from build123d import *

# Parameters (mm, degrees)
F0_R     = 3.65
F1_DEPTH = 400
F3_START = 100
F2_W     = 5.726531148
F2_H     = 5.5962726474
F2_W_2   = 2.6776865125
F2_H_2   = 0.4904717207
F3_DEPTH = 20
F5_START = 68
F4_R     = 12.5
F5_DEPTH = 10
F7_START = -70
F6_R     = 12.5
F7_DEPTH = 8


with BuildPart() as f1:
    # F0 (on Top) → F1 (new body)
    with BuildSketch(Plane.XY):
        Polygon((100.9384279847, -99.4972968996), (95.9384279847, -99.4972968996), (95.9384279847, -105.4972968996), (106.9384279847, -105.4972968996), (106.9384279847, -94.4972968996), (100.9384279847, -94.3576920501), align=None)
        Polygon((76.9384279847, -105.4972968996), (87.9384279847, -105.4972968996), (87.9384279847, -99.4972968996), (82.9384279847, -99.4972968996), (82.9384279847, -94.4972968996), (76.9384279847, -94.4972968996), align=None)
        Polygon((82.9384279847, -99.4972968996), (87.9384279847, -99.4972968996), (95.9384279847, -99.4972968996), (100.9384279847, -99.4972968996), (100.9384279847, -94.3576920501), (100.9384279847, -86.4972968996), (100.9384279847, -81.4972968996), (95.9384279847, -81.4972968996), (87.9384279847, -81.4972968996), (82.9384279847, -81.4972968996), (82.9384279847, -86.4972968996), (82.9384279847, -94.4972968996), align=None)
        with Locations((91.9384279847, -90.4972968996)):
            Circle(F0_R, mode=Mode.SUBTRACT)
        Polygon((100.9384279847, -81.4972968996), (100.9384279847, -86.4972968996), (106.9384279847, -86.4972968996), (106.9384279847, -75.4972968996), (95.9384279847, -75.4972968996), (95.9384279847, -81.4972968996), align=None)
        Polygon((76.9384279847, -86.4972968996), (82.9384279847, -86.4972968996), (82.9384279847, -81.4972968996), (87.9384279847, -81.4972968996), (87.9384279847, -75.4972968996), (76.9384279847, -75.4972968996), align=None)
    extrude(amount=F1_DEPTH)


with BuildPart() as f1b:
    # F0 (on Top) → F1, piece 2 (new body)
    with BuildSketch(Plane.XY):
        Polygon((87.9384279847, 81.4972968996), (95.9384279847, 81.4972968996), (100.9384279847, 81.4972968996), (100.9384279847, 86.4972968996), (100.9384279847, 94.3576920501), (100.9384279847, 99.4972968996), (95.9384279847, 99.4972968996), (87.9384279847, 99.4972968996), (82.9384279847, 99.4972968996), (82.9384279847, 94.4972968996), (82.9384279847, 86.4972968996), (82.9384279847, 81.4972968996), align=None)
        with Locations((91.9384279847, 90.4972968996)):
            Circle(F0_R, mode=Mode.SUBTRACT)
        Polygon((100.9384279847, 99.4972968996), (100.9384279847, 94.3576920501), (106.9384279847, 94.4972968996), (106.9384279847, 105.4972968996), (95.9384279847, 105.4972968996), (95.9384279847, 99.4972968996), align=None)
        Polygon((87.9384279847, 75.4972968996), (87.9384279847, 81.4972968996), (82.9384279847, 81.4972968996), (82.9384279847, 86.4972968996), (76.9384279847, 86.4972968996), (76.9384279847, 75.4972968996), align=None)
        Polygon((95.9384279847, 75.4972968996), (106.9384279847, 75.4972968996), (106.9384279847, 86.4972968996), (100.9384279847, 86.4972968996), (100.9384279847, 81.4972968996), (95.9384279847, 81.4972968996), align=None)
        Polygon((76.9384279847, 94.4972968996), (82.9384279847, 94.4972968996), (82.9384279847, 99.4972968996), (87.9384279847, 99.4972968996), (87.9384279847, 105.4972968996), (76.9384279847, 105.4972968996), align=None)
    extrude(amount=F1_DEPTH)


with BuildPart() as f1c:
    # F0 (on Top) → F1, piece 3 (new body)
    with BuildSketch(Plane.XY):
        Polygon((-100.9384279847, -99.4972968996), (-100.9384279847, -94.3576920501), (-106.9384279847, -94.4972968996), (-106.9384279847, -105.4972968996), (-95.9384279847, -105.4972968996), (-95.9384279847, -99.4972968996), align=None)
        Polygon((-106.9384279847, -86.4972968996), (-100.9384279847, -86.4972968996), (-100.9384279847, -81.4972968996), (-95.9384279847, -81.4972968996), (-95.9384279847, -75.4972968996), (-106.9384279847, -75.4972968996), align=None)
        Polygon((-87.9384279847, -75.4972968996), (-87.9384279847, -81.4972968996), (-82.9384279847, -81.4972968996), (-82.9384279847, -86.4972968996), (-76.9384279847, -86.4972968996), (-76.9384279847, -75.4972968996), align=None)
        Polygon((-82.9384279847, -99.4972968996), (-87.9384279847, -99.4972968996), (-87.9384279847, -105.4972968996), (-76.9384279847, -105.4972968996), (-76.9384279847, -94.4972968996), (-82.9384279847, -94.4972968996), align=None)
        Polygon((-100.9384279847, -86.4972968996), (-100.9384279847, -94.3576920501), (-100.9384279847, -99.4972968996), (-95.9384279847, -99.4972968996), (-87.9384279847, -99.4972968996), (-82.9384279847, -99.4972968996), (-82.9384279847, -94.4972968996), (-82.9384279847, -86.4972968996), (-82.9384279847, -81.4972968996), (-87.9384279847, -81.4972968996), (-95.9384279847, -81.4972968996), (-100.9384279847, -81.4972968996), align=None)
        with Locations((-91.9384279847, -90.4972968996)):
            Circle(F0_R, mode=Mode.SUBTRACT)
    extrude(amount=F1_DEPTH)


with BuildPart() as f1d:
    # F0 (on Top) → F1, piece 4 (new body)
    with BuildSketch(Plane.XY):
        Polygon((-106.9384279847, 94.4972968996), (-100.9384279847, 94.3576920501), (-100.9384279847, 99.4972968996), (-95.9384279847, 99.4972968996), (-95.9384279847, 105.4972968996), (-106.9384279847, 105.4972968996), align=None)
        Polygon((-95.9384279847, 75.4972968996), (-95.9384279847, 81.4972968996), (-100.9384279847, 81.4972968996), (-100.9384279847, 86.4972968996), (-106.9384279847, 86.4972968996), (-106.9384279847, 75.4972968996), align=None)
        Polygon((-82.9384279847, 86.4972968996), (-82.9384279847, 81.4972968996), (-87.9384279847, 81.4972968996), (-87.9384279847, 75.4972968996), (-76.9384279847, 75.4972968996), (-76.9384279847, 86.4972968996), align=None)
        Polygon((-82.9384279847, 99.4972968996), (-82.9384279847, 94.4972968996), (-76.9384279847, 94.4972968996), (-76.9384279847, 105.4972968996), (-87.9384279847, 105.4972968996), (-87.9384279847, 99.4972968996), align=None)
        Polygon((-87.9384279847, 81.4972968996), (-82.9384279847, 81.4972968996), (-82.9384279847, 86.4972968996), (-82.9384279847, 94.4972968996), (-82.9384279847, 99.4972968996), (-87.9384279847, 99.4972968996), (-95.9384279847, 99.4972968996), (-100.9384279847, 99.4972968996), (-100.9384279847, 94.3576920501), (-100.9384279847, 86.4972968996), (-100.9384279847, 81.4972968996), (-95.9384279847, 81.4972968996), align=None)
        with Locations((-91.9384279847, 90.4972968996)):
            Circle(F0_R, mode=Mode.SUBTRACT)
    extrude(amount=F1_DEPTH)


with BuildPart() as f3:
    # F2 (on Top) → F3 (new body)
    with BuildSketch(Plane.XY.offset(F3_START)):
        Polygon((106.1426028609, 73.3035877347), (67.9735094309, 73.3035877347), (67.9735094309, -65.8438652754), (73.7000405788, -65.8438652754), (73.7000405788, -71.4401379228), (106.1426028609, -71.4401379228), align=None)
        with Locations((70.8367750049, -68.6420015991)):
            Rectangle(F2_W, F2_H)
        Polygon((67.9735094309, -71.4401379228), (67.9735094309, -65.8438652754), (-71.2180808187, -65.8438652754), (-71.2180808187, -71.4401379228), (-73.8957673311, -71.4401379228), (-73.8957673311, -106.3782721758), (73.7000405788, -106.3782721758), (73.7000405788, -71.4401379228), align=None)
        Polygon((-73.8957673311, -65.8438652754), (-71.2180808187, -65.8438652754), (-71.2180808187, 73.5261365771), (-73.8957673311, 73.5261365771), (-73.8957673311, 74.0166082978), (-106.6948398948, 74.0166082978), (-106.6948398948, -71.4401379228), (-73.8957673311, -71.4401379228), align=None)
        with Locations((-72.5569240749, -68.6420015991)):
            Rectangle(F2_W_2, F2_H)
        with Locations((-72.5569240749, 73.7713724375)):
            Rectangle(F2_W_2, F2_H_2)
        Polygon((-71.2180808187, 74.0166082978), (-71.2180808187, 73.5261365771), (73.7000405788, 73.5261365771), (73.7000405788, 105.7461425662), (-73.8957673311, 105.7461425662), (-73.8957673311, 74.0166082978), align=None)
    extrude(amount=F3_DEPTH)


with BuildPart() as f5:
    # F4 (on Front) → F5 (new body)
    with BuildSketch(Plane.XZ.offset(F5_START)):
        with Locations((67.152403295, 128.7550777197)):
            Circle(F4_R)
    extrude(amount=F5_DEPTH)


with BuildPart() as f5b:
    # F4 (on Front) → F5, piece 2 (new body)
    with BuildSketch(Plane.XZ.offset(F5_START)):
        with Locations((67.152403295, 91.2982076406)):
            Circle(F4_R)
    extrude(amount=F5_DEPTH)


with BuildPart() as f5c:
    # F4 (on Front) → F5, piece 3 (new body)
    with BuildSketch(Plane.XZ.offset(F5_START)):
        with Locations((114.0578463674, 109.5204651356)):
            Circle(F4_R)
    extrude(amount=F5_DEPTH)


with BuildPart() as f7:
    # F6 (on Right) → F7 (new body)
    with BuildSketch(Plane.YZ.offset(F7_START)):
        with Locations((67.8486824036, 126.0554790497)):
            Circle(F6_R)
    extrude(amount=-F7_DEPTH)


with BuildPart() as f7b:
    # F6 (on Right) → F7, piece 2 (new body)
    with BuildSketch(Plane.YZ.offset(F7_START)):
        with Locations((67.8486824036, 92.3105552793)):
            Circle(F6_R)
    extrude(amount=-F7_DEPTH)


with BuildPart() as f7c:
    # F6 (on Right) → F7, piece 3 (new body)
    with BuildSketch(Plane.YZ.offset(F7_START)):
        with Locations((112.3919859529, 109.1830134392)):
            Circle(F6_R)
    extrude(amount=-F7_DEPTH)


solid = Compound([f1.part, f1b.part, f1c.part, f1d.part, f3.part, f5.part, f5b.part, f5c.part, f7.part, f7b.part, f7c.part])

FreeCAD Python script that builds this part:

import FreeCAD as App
import Part
import Sketcher

V = App.Vector
Q = App.Units.Quantity


def add_polygon(sketch, points):
    """Adds a closed chain of lines whose ends are joined by coincident constraints."""
    first, n = sketch.GeometryCount, len(points)
    for a, b in zip(points, points[1:] + points[:1]):
        sketch.addGeometry(Part.LineSegment(App.Vector(*a, 0), App.Vector(*b, 0)), False)
    for i in range(n):
        sketch.addConstraint(Sketcher.Constraint("Coincident", first + i, 2, first + (i + 1) % n, 1))

doc = App.newDocument("Part")
body = doc.addObject("PartDesign::Body", "Body")

sketch1 = doc.addObject("Sketcher::SketchObject", "Sketch")
body.addObject(sketch1)
sketch1.AttachmentSupport = (doc.XY_Plane, [""])
sketch1.MapMode = "FlatFace"
add_polygon(sketch1, [(95.9, -99.5), (95.9, -105.5), (106.9, -105.5), (106.9, -94.5), (100.9, -94.4), (100.9, -86.5), (106.9, -86.5), (106.9, -75.5), (95.9, -75.5), (95.9, -81.5), (87.9, -81.5), (87.9, -75.5), (76.9, -75.5), (76.9, -86.5), (82.9, -86.5), (82.9, -94.5), (76.9, -94.5), (76.9, -105.5), (87.9, -105.5), (87.9, -99.5)])
sketch1.addGeometry(Part.Circle(V(91.9, -90.5, 0), V(0, 0, 1), 3.6), False)
sketch1.addConstraint([
    Sketcher.Constraint("Vertical", 0),
    Sketcher.Constraint("Horizontal", 1),
    Sketcher.Constraint("Vertical", 2),
    Sketcher.Constraint("Vertical", 4),
    Sketcher.Constraint("Horizontal", 5),
    Sketcher.Constraint("Vertical", 6),
    Sketcher.Constraint("Horizontal", 7),
    Sketcher.Constraint("Vertical", 8),
    Sketcher.Constraint("Horizontal", 9),
    Sketcher.Constraint("Vertical", 10),
    Sketcher.Constraint("Horizontal", 11),
    Sketcher.Constraint("Vertical", 12),
    Sketcher.Constraint("Horizontal", 13),
    Sketcher.Constraint("Vertical", 14),
    Sketcher.Constraint("Horizontal", 15),
    Sketcher.Constraint("Vertical", 16),
    Sketcher.Constraint("Horizontal", 17),
    Sketcher.Constraint("Vertical", 18),
    Sketcher.Constraint("Horizontal", 19),
    Sketcher.Constraint("Horizontal", 7, 2, 10, 2),
    Sketcher.Constraint("Horizontal", 5, 2, 12, 2),
    Sketcher.Constraint("Horizontal", 2, 2, 14, 2),
    Sketcher.Constraint("Horizontal", 1, 2, 16, 2),
    Sketcher.Constraint("Vertical", 2, 2, 5, 2),
    Sketcher.Constraint("Vertical", 0, 2, 7, 2),
    Sketcher.Constraint("Vertical", 12, 2, 15, 2),
    Sketcher.Constraint("Vertical", 10, 2, 17, 2),
    Sketcher.Constraint("Equal", 7, 11),
    Sketcher.Constraint("Equal", 5, 13),
    Sketcher.Constraint("Equal", 15, 0),
    Sketcher.Constraint("Equal", 17, 2),
    Sketcher.Constraint("Equal", 2, 6),
    Sketcher.Constraint("Equal", 0, 8),
    Sketcher.Constraint("Equal", 19, 14),
    Sketcher.Constraint("Diameter", 20, Q("7.3 mm")),
    Sketcher.Constraint("DistanceX", 1, 1, 1, 2, Q("11 mm")),
    Sketcher.Constraint("DistanceX", 5, 1, 5, 2, Q("6 mm")),
    Sketcher.Constraint("DistanceX", 9, 2, 9, 1, Q("8 mm")),
    Sketcher.Constraint("DistanceX", 20, 3, 0, 2, Q("4 mm")),
    Sketcher.Constraint("DistanceY", 0, 2, 20, 3, Q("15 mm")),
    Sketcher.Constraint("DistanceY", 4, 1, 4, 2, Q("7.860395 mm")),
    Sketcher.Constraint("DistanceX", -1, 1, 20, 3, Q("91.938428 mm")),
    Sketcher.Constraint("DistanceY", 20, 3, -1, 1, Q("90.497297 mm")),
])
pad1 = doc.addObject("PartDesign::Pad", "Pad")
body.addObject(pad1)
pad1.Profile = sketch1
pad1.Length = 400
body2 = doc.addObject("PartDesign::Body", "Body001")

sketch2 = doc.addObject("Sketcher::SketchObject", "Sketch001")
body2.addObject(sketch2)
sketch2.AttachmentSupport = (doc.getObject("XY_Plane001"), [""])
sketch2.MapMode = "FlatFace"
add_polygon(sketch2, [(100.9, 86.5), (100.9, 94.4), (106.9, 94.5), (106.9, 105.5), (95.9, 105.5), (95.9, 99.5), (87.9, 99.5), (87.9, 105.5), (76.9, 105.5), (76.9, 94.5), (82.9, 94.5), (82.9, 86.5), (76.9, 86.5), (76.9, 75.5), (87.9, 75.5), (87.9, 81.5), (95.9, 81.5), (95.9, 75.5), (106.9, 75.5), (106.9, 86.5)])
sketch2.addGeometry(Part.Circle(V(91.9, 90.5, 0), V(0, 0, 1), 3.6), False)
sketch2.addConstraint([
    Sketcher.Constraint("Vertical", 0),
    Sketcher.Constraint("Vertical", 2),
    Sketcher.Constraint("Horizontal", 3),
    Sketcher.Constraint("Vertical", 4),
    Sketcher.Constraint("Horizontal", 5),
    Sketcher.Constraint("Vertical", 6),
    Sketcher.Constraint("Horizontal", 7),
    Sketcher.Constraint("Vertical", 8),
    Sketcher.Constraint("Horizontal", 9),
    Sketcher.Constraint("Vertical", 10),
    Sketcher.Constraint("Horizontal", 11),
    Sketcher.Constraint("Vertical", 12),
    Sketcher.Constraint("Horizontal", 13),
    Sketcher.Constraint("Vertical", 14),
    Sketcher.Constraint("Horizontal", 15),
    Sketcher.Constraint("Vertical", 16),
    Sketcher.Constraint("Horizontal", 17),
    Sketcher.Constraint("Vertical", 18),
    Sketcher.Constraint("Horizontal", 19),
    Sketcher.Constraint("Horizontal", 3, 2, 6, 2),
    Sketcher.Constraint("Horizontal", 1, 2, 8, 2),
    Sketcher.Constraint("Horizontal", 13, 2, 16, 2),
    Sketcher.Constraint("Horizontal", 11, 2, 18, 2),
    Sketcher.Constraint("Vertical", 8, 2, 11, 2),
    Sketcher.Constraint("Vertical", 6, 2, 13, 2),
    Sketcher.Constraint("Vertical", 4, 2, 15, 2),
    Sketcher.Constraint("Vertical", 2, 2, 17, 2),
    Sketcher.Constraint("Equal", 3, 7),
    Sketcher.Constraint("Equal", 11, 19),
    Sketcher.Constraint("Equal", 17, 2),
    Sketcher.Constraint("Equal", 19, 4),
    Sketcher.Constraint("Equal", 15, 10),
    Sketcher.Constraint("Equal", 8, 12),
    Sketcher.Constraint("Equal", 6, 14),
    Sketcher.Constraint("Diameter", 20, Q("7.3 mm")),
    Sketcher.Constraint("DistanceX", 3, 2, 3, 1, Q("11 mm")),
    Sketcher.Constraint("DistanceX", 5, 2, 5, 1, Q("8 mm")),
    Sketcher.Constraint("DistanceX", 9, 1, 9, 2, Q("6 mm")),
    Sketcher.Constraint("DistanceX", 20, 3, 0, 2, Q("9 mm")),
    Sketcher.Constraint("DistanceY", 20, 3, 1, 2, Q("4 mm")),
    Sketcher.Constraint("DistanceY", 0, 1, 0, 2, Q("7.860395 mm")),
    Sketcher.Constraint("DistanceX", -1, 1, 20, 3, Q("91.938428 mm")),
    Sketcher.Constraint("DistanceY", -1, 1, 20, 3, Q("90.497297 mm")),
])
pad2 = doc.addObject("PartDesign::Pad", "Pad001")
body2.addObject(pad2)
pad2.Profile = sketch2
pad2.Length = 400
body3 = doc.addObject("PartDesign::Body", "Body002")

sketch3 = doc.addObject("Sketcher::SketchObject", "Sketch002")
body3.addObject(sketch3)
sketch3.AttachmentSupport = (doc.getObject("XY_Plane002"), [""])
sketch3.MapMode = "FlatFace"
add_polygon(sketch3, [(-100.9, -94.4), (-106.9, -94.5), (-106.9, -105.5), (-95.9, -105.5), (-95.9, -99.5), (-87.9, -99.5), (-87.9, -105.5), (-76.9, -105.5), (-76.9, -94.5), (-82.9, -94.5), (-82.9, -86.5), (-76.9, -86.5), (-76.9, -75.5), (-87.9, -75.5), (-87.9, -81.5), (-95.9, -81.5), (-95.9, -75.5), (-106.9, -75.5), (-106.9, -86.5), (-100.9, -86.5)])
sketch3.addGeometry(Part.Circle(V(-91.9, -90.5, 0), V(0, 0, 1), 3.6), False)
sketch3.addConstraint([
    Sketcher.Constraint("Vertical", 1),
    Sketcher.Constraint("Horizontal", 2),
    Sketcher.Constraint("Vertical", 3),
    Sketcher.Constraint("Horizontal", 4),
    Sketcher.Constraint("Vertical", 5),
    Sketcher.Constraint("Horizontal", 6),
    Sketcher.Constraint("Vertical", 7),
    Sketcher.Constraint("Horizontal", 8),
    Sketcher.Constraint("Vertical", 9),
    Sketcher.Constraint("Horizontal", 10),
    Sketcher.Constraint("Vertical", 11),
    Sketcher.Constraint("Horizontal", 12),
    Sketcher.Constraint("Vertical", 13),
    Sketcher.Constraint("Horizontal", 14),
    Sketcher.Constraint("Vertical", 15),
    Sketcher.Constraint("Horizontal", 16),
    Sketcher.Constraint("Vertical", 17),
    Sketcher.Constraint("Horizontal", 18),
    Sketcher.Constraint("Vertical", 19),
    Sketcher.Constraint("Horizontal", 2, 2, 5, 2),
    Sketcher.Constraint("Horizontal", 0, 2, 7, 2),
    Sketcher.Constraint("Horizontal", 12, 2, 15, 2),
    Sketcher.Constraint("Horizontal", 10, 2, 17, 2),
    Sketcher.Constraint("Vertical", 7, 2, 10, 2),
    Sketcher.Constraint("Vertical", 5, 2, 12, 2),
    Sketcher.Constraint("Vertical", 3, 2, 14, 2),
    Sketcher.Constraint("Vertical", 1, 2, 16, 2),
    Sketcher.Constraint("Equal", 2, 6),
    Sketcher.Constraint("Equal", 10, 18),
    Sketcher.Constraint("Equal", 16, 1),
    Sketcher.Constraint("Equal", 18, 3),
    Sketcher.Constraint("Equal", 14, 9),
    Sketcher.Constraint("Equal", 7, 11),
    Sketcher.Constraint("Equal", 5, 13),
    Sketcher.Constraint("Diameter", 20, Q("7.3 mm")),
    Sketcher.Constraint("DistanceX", 2, 1, 2, 2, Q("11 mm")),
    Sketcher.Constraint("DistanceX", 4, 1, 4, 2, Q("8 mm")),
    Sketcher.Constraint("DistanceX", 8, 2, 8, 1, Q("6 mm")),
    Sketcher.Constraint("DistanceX", 0, 2, 20, 3, Q("15 mm")),
    Sketcher.Constraint("DistanceY", 0, 2, 20, 3, Q("4 mm")),
    Sketcher.Constraint("DistanceY", 19, 2, 19, 1, Q("7.860395 mm")),
    Sketcher.Constraint("DistanceX", 20, 3, -1, 1, Q("91.938428 mm")),
    Sketcher.Constraint("DistanceY", 20, 3, -1, 1, Q("90.497297 mm")),
])
pad3 = doc.addObject("PartDesign::Pad", "Pad002")
body3.addObject(pad3)
pad3.Profile = sketch3
pad3.Length = 400
body4 = doc.addObject("PartDesign::Body", "Body003")

sketch4 = doc.addObject("Sketcher::SketchObject", "Sketch003")
body4.addObject(sketch4)
sketch4.AttachmentSupport = (doc.getObject("XY_Plane003"), [""])
sketch4.MapMode = "FlatFace"
add_polygon(sketch4, [(-106.9, 94.5), (-100.9, 94.4), (-100.9, 86.5), (-106.9, 86.5), (-106.9, 75.5), (-95.9, 75.5), (-95.9, 81.5), (-87.9, 81.5), (-87.9, 75.5), (-76.9, 75.5), (-76.9, 86.5), (-82.9, 86.5), (-82.9, 94.5), (-76.9, 94.5), (-76.9, 105.5), (-87.9, 105.5), (-87.9, 99.5), (-95.9, 99.5), (-95.9, 105.5), (-106.9, 105.5)])
sketch4.addGeometry(Part.Circle(V(-91.9, 90.5, 0), V(0, 0, 1), 3.6), False)
sketch4.addConstraint([
    Sketcher.Constraint("Vertical", 1),
    Sketcher.Constraint("Horizontal", 2),
    Sketcher.Constraint("Vertical", 3),
    Sketcher.Constraint("Horizontal", 4),
    Sketcher.Constraint("Vertical", 5),
    Sketcher.Constraint("Horizontal", 6),
    Sketcher.Constraint("Vertical", 7),
    Sketcher.Constraint("Horizontal", 8),
    Sketcher.Constraint("Vertical", 9),
    Sketcher.Constraint("Horizontal", 10),
    Sketcher.Constraint("Vertical", 11),
    Sketcher.Constraint("Horizontal", 12),
    Sketcher.Constraint("Vertical", 13),
    Sketcher.Constraint("Horizontal", 14),
    Sketcher.Constraint("Vertical", 15),
    Sketcher.Constraint("Horizontal", 16),
    Sketcher.Constraint("Vertical", 17),
    Sketcher.Constraint("Horizontal", 18),
    Sketcher.Constraint("Vertical", 19),
    Sketcher.Constraint("Horizontal", 4, 2, 7, 2),
    Sketcher.Constraint("Horizontal", 2, 2, 9, 2),
    Sketcher.Constraint("Horizontal", 14, 2, 17, 2),
    Sketcher.Constraint("Horizontal", 12, 2, 19, 2),
    Sketcher.Constraint("Vertical", 9, 2, 12, 2),
    Sketcher.Constraint("Vertical", 7, 2, 14, 2),
    Sketcher.Constraint("Vertical", 5, 2, 16, 2),
    Sketcher.Constraint("Vertical", 3, 2, 18, 2),
    Sketcher.Constraint("Equal", 4, 8),
    Sketcher.Constraint("Equal", 2, 10),
    Sketcher.Constraint("Equal", 18, 3),
    Sketcher.Constraint("Equal", 12, 5),
    Sketcher.Constraint("Equal", 16, 11),
    Sketcher.Constraint("Equal", 9, 13),
    Sketcher.Constraint("Equal", 7, 15),
    Sketcher.Constraint("Diameter", 20, Q("7.3 mm")),
    Sketcher.Constraint("DistanceX", 2, 2, 2, 1, Q("6 mm")),
    Sketcher.Constraint("DistanceX", 4, 1, 4, 2, Q("11 mm")),
    Sketcher.Constraint("DistanceX", 6, 1, 6, 2, Q("8 mm")),
    Sketcher.Constraint("DistanceX", 0, 2, 20, 3, Q("9 mm")),
    Sketcher.Constraint("DistanceY", 1, 2, 20, 3, Q("4 mm")),
    Sketcher.Constraint("DistanceY", 1, 2, 1, 1, Q("7.860395 mm")),
    Sketcher.Constraint("DistanceX", 20, 3, -1, 1, Q("91.938428 mm")),
    Sketcher.Constraint("DistanceY", -1, 1, 20, 3, Q("90.497297 mm")),
])
pad4 = doc.addObject("PartDesign::Pad", "Pad003")
body4.addObject(pad4)
pad4.Profile = sketch4
pad4.Length = 400
body5 = doc.addObject("PartDesign::Body", "Body004")

sketch5 = doc.addObject("Sketcher::SketchObject", "Sketch004")
body5.addObject(sketch5)
sketch5.AttachmentSupport = (doc.getObject("XY_Plane004"), [""])
sketch5.MapMode = "FlatFace"
sketch5.AttachmentOffset = App.Placement(V(0, 0, 100), App.Rotation())
add_polygon(sketch5, [(106, 73), (68, 73), (68, -66), (-71, -66), (-71, 74), (74, 74), (74, 106), (-74, 106), (-74, 74), (-107, 74), (-107, -71), (-74, -71), (-74, -106), (74, -106), (74, -71), (106, -71)])
sketch5.addConstraint([
    Sketcher.Constraint("Horizontal", 0),
    Sketcher.Constraint("Vertical", 1),
    Sketcher.Constraint("Horizontal", 2),
    Sketcher.Constraint("Vertical", 3),
    Sketcher.Constraint("Horizontal", 4),
    Sketcher.Constraint("Vertical", 5),
    Sketcher.Constraint("Horizontal", 6),
    Sketcher.Constraint("Vertical", 7),
    Sketcher.Constraint("Horizontal", 8),
    Sketcher.Constraint("Vertical", 9),
    Sketcher.Constraint("Horizontal", 10),
    Sketcher.Constraint("Vertical", 11),
    Sketcher.Constraint("Horizontal", 12),
    Sketcher.Constraint("Vertical", 13),
    Sketcher.Constraint("Horizontal", 14),
    Sketcher.Constraint("Vertical", 15),
    Sketcher.Constraint("Horizontal", 10, 2, 13, 2),
    Sketcher.Constraint("Vertical", 7, 2, 10, 2),
    Sketcher.Constraint("Vertical", 5, 2, 12, 2),
    Sketcher.Constraint("DistanceY", 3, 1, 3, 2, Q("139.370002 mm")),
    Sketcher.Constraint("DistanceX", 2, 2, 2, 1, Q("139.19159 mm")),
    Sketcher.Constraint("DistanceX", 4, 1, 4, 2, Q("144.918121 mm")),
    Sketcher.Constraint("DistanceX", 0, 2, 0, 1, Q("38.169093 mm")),
    Sketcher.Constraint("DistanceX", 6, 2, 6, 1, Q("147.595808 mm")),
    Sketcher.Constraint("DistanceX", 8, 2, 8, 1, Q("32.799073 mm")),
    Sketcher.Constraint("DistanceY", 1, 2, 1, 1, Q("139.147453 mm")),
    Sketcher.Constraint("DistanceY", 5, 1, 5, 2, Q("32.220006 mm")),
    Sketcher.Constraint("DistanceY", 7, 2, 7, 1, Q("31.729534 mm")),
    Sketcher.Constraint("DistanceY", 9, 2, 9, 1, Q("145.456746 mm")),
    Sketcher.Constraint("DistanceY", 11, 2, 11, 1, Q("34.938134 mm")),
    Sketcher.Constraint("DistanceX", -1, 1, 0, 2, Q("67.973509 mm")),
    Sketcher.Constraint("DistanceY", -1, 1, 7, 2, Q("74.016608 mm")),
])
pad5 = doc.addObject("PartDesign::Pad", "Pad004")
body5.addObject(pad5)
pad5.Profile = sketch5
pad5.Length = 20
body6 = doc.addObject("PartDesign::Body", "Body005")

sketch6 = doc.addObject("Sketcher::SketchObject", "Sketch005")
body6.addObject(sketch6)
sketch6.AttachmentSupport = (doc.getObject("XZ_Plane005"), [""])
sketch6.MapMode = "FlatFace"
sketch6.AttachmentOffset = App.Placement(V(0, 0, 68), App.Rotation())
sketch6.addGeometry(Part.Circle(V(67, 129, 0), V(0, 0, 1), 12), False)
sketch6.addConstraint([
    Sketcher.Constraint("Diameter", 0, Q("25 mm")),
    Sketcher.Constraint("DistanceX", -1, 1, 0, 3, Q("67.152403 mm")),
    Sketcher.Constraint("DistanceY", -1, 1, 0, 3, Q("128.755078 mm")),
])
pad6 = doc.addObject("PartDesign::Pad", "Pad005")
body6.addObject(pad6)
pad6.Profile = sketch6
pad6.Length = 10
body7 = doc.addObject("PartDesign::Body", "Body006")

sketch7 = doc.addObject("Sketcher::SketchObject", "Sketch006")
body7.addObject(sketch7)
sketch7.AttachmentSupport = (doc.getObject("XZ_Plane006"), [""])
sketch7.MapMode = "FlatFace"
sketch7.AttachmentOffset = App.Placement(V(0, 0, 68), App.Rotation())
sketch7.addGeometry(Part.Circle(V(67, 91, 0), V(0, 0, 1), 12), False)
sketch7.addConstraint([
    Sketcher.Constraint("Diameter", 0, Q("25 mm")),
    Sketcher.Constraint("DistanceX", -1, 1, 0, 3, Q("67.152403 mm")),
    Sketcher.Constraint("DistanceY", -1, 1, 0, 3, Q("91.298208 mm")),
])
pad7 = doc.addObject("PartDesign::Pad", "Pad006")
body7.addObject(pad7)
pad7.Profile = sketch7
pad7.Length = 10
body8 = doc.addObject("PartDesign::Body", "Body007")

sketch8 = doc.addObject("Sketcher::SketchObject", "Sketch007")
body8.addObject(sketch8)
sketch8.AttachmentSupport = (doc.getObject("XZ_Plane007"), [""])
sketch8.MapMode = "FlatFace"
sketch8.AttachmentOffset = App.Placement(V(0, 0, 68), App.Rotation())
sketch8.addGeometry(Part.Circle(V(114, 110, 0), V(0, 0, 1), 12), False)
sketch8.addConstraint([
    Sketcher.Constraint("Diameter", 0, Q("25 mm")),
    Sketcher.Constraint("DistanceX", -1, 1, 0, 3, Q("114.057846 mm")),
    Sketcher.Constraint("DistanceY", -1, 1, 0, 3, Q("109.520465 mm")),
])
pad8 = doc.addObject("PartDesign::Pad", "Pad007")
body8.addObject(pad8)
pad8.Profile = sketch8
pad8.Length = 10
body9 = doc.addObject("PartDesign::Body", "Body008")

sketch9 = doc.addObject("Sketcher::SketchObject", "Sketch008")
body9.addObject(sketch9)
sketch9.AttachmentSupport = (doc.getObject("YZ_Plane008"), [""])
sketch9.MapMode = "FlatFace"
sketch9.AttachmentOffset = App.Placement(V(0, 0, -70), App.Rotation())
sketch9.addGeometry(Part.Circle(V(68, 126, 0), V(0, 0, 1), 12), False)
sketch9.addConstraint([
    Sketcher.Constraint("Diameter", 0, Q("25 mm")),
    Sketcher.Constraint("DistanceY", -1, 1, 0, 3, Q("126.055479 mm")),
    Sketcher.Constraint("DistanceX", -1, 1, 0, 3, Q("67.848682 mm")),
])
pad9 = doc.addObject("PartDesign::Pad", "Pad008")
body9.addObject(pad9)
pad9.Profile = sketch9
pad9.Length = 8
pad9.Reversed = True
body10 = doc.addObject("PartDesign::Body", "Body009")

sketch10 = doc.addObject("Sketcher::SketchObject", "Sketch009")
body10.addObject(sketch10)
sketch10.AttachmentSupport = (doc.getObject("YZ_Plane009"), [""])
sketch10.MapMode = "FlatFace"
sketch10.AttachmentOffset = App.Placement(V(0, 0, -70), App.Rotation())
sketch10.addGeometry(Part.Circle(V(68, 92, 0), V(0, 0, 1), 12), False)
sketch10.addConstraint([
    Sketcher.Constraint("Diameter", 0, Q("25 mm")),
    Sketcher.Constraint("DistanceX", -1, 1, 0, 3, Q("67.848682 mm")),
    Sketcher.Constraint("DistanceY", -1, 1, 0, 3, Q("92.310555 mm")),
])
pad10 = doc.addObject("PartDesign::Pad", "Pad009")
body10.addObject(pad10)
pad10.Profile = sketch10
pad10.Length = 8
pad10.Reversed = True
body11 = doc.addObject("PartDesign::Body", "Body010")

sketch11 = doc.addObject("Sketcher::SketchObject", "Sketch010")
body11.addObject(sketch11)
sketch11.AttachmentSupport = (doc.getObject("YZ_Plane010"), [""])
sketch11.MapMode = "FlatFace"
sketch11.AttachmentOffset = App.Placement(V(0, 0, -70), App.Rotation())
sketch11.addGeometry(Part.Circle(V(112, 109, 0), V(0, 0, 1), 12), False)
sketch11.addConstraint([
    Sketcher.Constraint("Diameter", 0, Q("25 mm")),
    Sketcher.Constraint("DistanceX", -1, 1, 0, 3, Q("112.391986 mm")),
    Sketcher.Constraint("DistanceY", -1, 1, 0, 3, Q("109.183013 mm")),
])
pad11 = doc.addObject("PartDesign::Pad", "Pad010")
body11.addObject(pad11)
pad11.Profile = sketch11
pad11.Length = 8
pad11.Reversed = True

doc.recompute()
